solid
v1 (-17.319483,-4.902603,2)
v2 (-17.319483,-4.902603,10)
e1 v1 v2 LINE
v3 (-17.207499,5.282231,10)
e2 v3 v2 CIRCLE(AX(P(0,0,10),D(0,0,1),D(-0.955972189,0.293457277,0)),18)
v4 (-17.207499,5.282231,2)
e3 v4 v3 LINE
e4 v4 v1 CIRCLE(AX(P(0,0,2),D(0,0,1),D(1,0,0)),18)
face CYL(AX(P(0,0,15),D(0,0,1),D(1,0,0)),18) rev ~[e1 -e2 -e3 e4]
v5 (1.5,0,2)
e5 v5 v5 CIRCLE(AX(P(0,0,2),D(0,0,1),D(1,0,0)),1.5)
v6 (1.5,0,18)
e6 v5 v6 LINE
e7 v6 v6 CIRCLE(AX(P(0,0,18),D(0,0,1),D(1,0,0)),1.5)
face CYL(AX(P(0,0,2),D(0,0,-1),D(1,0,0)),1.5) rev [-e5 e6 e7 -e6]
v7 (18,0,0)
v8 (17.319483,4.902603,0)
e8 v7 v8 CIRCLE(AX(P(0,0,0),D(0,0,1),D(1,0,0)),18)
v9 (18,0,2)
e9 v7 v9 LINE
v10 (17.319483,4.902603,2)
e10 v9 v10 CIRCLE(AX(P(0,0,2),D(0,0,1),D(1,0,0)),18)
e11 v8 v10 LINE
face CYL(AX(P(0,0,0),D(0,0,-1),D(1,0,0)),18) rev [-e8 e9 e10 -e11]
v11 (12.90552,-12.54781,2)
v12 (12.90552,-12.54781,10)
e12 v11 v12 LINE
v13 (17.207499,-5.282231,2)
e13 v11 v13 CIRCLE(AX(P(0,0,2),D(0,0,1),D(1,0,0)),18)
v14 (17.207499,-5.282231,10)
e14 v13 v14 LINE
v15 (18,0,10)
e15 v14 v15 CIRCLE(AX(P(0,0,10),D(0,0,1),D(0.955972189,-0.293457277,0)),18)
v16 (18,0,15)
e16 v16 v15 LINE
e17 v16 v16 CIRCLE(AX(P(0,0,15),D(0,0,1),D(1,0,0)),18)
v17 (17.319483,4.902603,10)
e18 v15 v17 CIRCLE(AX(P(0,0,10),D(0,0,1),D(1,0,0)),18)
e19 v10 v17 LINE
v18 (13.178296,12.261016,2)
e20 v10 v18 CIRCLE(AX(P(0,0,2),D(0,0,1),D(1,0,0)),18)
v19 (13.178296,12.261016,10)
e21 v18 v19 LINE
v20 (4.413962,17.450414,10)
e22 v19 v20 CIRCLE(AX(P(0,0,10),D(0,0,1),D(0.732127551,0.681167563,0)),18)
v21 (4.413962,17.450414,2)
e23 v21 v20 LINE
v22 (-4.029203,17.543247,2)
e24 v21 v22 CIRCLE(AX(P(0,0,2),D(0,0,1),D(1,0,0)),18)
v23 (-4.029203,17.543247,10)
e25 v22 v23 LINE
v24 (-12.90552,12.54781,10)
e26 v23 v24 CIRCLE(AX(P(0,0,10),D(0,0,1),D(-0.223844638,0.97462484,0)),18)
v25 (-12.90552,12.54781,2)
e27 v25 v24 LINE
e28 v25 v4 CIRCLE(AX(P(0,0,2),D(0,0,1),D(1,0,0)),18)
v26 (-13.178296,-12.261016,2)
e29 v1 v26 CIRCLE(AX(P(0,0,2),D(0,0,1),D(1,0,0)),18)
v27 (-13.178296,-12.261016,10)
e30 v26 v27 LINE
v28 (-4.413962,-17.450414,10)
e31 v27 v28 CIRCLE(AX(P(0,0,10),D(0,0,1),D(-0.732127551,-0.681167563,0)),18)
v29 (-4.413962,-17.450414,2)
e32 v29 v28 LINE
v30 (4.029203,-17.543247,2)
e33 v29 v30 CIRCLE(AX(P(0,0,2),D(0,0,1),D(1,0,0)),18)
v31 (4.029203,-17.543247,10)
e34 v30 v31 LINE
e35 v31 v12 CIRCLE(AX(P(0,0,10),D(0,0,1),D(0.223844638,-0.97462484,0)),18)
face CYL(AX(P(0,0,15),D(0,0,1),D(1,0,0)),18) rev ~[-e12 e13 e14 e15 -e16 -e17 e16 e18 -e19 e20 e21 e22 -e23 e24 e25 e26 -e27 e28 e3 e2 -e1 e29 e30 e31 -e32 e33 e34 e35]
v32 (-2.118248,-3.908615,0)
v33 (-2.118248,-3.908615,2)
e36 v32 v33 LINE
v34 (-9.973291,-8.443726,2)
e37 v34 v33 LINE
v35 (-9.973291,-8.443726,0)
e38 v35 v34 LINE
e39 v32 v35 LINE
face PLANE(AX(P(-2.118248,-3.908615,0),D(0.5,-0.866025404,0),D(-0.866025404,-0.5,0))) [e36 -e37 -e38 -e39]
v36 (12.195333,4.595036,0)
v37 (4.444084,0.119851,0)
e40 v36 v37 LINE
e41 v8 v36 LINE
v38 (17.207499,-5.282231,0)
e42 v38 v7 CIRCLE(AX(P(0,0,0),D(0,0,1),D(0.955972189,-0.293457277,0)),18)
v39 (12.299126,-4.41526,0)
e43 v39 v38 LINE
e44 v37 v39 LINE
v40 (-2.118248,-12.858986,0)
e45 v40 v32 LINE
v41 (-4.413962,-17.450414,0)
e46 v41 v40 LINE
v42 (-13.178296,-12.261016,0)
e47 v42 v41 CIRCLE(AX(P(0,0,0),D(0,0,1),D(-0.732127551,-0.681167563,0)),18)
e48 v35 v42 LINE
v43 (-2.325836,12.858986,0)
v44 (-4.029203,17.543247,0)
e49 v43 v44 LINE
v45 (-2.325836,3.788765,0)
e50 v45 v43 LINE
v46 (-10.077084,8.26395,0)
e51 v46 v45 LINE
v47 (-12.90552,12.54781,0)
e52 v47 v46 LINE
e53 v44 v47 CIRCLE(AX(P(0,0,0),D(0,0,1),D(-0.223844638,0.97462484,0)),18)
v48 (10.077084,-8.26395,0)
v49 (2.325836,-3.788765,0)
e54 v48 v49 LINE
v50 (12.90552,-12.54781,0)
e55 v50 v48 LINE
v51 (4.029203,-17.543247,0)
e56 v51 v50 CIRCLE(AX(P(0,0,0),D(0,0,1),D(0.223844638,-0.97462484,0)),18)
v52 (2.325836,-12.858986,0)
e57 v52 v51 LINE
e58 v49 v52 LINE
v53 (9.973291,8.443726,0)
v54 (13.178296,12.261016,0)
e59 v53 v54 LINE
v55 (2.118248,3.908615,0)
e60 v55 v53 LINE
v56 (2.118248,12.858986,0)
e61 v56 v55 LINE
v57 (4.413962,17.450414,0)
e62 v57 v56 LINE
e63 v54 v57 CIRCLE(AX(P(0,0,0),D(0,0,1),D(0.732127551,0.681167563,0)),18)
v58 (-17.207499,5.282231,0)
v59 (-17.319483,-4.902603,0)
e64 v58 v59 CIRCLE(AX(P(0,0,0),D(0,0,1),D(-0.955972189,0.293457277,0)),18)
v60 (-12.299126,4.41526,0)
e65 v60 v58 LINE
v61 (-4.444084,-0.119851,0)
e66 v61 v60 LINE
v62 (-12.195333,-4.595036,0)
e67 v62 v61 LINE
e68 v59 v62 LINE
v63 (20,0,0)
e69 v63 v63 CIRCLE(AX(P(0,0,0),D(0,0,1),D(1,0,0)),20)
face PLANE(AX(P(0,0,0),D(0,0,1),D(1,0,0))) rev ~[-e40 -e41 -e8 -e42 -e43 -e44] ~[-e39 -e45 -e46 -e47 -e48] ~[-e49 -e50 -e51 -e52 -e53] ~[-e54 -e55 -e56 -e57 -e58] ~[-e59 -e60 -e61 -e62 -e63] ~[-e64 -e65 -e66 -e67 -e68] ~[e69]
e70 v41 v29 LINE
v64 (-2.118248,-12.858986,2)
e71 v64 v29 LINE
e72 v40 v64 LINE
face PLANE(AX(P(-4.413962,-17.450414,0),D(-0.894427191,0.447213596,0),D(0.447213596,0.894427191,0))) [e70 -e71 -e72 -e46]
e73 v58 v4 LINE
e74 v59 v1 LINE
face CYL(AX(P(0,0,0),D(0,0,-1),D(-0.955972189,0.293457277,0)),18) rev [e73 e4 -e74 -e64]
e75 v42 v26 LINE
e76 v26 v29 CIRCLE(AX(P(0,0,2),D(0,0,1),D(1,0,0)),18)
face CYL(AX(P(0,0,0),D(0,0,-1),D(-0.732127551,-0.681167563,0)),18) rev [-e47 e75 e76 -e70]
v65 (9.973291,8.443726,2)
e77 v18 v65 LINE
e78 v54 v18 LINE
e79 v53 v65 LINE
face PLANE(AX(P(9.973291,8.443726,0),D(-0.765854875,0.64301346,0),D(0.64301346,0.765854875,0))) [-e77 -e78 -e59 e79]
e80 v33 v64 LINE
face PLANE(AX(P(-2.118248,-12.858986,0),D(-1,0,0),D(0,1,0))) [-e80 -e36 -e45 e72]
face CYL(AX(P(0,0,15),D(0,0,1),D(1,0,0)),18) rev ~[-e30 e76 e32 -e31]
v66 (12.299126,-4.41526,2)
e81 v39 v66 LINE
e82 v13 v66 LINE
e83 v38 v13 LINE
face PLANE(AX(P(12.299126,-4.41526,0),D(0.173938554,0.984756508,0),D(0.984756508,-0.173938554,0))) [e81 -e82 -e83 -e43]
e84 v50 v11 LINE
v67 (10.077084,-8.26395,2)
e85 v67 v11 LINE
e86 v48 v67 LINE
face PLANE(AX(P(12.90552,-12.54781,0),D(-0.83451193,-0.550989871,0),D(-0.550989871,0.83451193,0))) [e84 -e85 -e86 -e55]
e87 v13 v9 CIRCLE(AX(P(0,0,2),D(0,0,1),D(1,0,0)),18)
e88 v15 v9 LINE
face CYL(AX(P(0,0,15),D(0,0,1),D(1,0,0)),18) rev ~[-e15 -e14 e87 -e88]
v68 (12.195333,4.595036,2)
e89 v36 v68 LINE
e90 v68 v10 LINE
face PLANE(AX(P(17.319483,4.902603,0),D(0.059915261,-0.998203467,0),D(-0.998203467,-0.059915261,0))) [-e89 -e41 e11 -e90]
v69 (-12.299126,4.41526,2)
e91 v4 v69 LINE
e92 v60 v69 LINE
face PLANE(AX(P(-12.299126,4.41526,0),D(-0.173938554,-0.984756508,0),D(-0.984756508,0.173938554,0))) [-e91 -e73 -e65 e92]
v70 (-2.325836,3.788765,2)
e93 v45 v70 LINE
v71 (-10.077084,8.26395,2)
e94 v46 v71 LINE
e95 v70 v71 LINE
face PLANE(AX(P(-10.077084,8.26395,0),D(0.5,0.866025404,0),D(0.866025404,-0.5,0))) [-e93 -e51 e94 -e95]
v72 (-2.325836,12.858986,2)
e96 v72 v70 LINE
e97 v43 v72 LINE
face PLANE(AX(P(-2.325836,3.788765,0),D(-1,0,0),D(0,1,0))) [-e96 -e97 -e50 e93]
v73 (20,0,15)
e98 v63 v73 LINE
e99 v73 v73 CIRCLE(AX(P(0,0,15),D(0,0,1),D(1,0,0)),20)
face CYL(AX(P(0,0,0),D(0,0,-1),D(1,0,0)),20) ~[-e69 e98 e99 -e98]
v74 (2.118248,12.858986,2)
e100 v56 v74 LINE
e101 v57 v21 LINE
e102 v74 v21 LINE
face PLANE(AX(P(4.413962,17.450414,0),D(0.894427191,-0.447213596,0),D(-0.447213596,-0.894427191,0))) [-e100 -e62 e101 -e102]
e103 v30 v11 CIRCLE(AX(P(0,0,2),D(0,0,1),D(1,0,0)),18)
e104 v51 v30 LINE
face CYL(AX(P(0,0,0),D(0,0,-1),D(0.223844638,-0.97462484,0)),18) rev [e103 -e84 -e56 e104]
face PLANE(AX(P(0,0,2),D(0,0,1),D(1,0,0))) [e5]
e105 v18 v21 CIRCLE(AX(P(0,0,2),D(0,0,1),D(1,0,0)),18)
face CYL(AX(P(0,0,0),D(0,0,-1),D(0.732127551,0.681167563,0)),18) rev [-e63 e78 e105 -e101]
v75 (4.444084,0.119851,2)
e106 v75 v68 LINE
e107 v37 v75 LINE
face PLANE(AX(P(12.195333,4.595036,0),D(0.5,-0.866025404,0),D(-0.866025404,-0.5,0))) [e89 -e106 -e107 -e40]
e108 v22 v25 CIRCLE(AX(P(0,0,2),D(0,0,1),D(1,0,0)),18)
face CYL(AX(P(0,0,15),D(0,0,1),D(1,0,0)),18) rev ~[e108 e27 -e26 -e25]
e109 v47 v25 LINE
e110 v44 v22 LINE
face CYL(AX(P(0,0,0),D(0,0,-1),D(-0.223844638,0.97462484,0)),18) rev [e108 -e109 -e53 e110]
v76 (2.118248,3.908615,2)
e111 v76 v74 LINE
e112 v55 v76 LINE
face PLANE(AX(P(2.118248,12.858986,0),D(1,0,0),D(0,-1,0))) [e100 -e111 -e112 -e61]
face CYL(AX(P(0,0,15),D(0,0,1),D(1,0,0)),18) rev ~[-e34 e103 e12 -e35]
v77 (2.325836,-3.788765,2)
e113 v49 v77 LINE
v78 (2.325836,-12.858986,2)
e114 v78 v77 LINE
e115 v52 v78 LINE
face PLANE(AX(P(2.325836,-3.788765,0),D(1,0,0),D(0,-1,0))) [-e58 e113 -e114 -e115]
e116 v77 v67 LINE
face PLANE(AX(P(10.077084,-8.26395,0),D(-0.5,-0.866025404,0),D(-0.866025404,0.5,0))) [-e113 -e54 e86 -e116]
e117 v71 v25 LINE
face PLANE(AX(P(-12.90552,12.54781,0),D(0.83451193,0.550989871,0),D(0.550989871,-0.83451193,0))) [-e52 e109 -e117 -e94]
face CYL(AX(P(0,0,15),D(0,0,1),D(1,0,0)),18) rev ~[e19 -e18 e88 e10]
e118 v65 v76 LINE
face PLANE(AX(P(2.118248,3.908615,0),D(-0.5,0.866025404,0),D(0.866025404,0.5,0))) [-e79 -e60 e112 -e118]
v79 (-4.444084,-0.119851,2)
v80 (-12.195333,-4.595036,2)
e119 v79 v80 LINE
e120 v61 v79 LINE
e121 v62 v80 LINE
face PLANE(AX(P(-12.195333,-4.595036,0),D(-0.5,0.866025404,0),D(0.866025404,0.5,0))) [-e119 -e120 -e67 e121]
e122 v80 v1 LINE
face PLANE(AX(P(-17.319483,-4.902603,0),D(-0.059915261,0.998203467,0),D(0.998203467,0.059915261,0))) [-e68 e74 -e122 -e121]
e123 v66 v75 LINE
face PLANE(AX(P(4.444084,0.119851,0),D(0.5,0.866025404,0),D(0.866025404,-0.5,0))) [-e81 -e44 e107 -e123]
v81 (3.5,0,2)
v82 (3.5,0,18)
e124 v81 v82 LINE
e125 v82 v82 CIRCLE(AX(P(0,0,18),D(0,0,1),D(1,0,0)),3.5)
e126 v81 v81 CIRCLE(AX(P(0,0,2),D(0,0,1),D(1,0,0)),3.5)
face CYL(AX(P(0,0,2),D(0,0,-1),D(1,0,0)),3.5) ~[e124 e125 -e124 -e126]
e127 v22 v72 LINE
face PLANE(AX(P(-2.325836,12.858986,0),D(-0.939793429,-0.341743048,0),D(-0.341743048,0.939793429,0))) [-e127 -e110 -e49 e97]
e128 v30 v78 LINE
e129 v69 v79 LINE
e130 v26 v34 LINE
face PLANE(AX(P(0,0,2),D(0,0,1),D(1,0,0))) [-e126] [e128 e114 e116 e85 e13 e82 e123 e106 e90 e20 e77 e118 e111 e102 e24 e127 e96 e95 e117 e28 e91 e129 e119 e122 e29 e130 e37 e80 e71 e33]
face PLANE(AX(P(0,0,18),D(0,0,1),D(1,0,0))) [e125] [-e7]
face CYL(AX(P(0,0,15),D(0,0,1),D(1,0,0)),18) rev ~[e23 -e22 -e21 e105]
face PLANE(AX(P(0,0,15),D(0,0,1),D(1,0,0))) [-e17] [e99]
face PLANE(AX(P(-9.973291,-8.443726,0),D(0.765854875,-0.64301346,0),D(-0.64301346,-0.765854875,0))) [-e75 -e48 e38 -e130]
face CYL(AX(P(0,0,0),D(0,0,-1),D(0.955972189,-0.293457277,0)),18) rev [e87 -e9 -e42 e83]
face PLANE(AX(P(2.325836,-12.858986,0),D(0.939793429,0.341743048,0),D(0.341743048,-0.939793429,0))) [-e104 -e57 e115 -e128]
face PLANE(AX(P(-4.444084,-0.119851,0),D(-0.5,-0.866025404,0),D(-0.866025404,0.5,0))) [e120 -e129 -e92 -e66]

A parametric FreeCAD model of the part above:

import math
import FreeCAD as App
import Part
import Sketcher
from FreeCAD import Vector
Q = App.Units.Quantity

doc = App.newDocument("Part")
body = doc.addObject("PartDesign::Body", "Body")

# Sketch on XY plane
sketch1 = body.newObject("Sketcher::SketchObject", "Sketch")
sketch1.AttachmentSupport = (doc.getObject("XY_Plane"), [""])
sketch1.MapMode = "FlatFace"
sketch1.addGeometry(Part.Circle(Vector(0, 0, 0), Vector(0, 0, 1), 20), False)
sketch1.addConstraint(Sketcher.Constraint("Coincident", 0, 3, -1, 1))
sketch1.addConstraint(Sketcher.Constraint("Diameter", 0, Q("40 mm")))
pad1 = body.newObject("PartDesign::Pad", "Pad")
pad1.Profile = sketch1
pad1.Length = 15

# Sketch on XY plane
sketch2 = body.newObject("Sketcher::SketchObject", "Sketch001")
sketch2.AttachmentSupport = (doc.getObject("XY_Plane"), [""])
sketch2.MapMode = "FlatFace"
sketch2.AttachmentOffset = App.Placement(Vector(0, 0, 15), App.Rotation())
sketch2.addGeometry(Part.Circle(Vector(0, 0, 0), Vector(0, 0, 1), 18), False)
sketch2.addConstraint(Sketcher.Constraint("Coincident", 0, 3, -1, 1))
sketch2.addConstraint(Sketcher.Constraint("Diameter", 0, Q("36 mm")))
pocket1 = body.newObject("PartDesign::Pocket", "Pocket")
pocket1.Profile = sketch2
pocket1.Length = 13

# Sketch on XY plane
sketch3 = body.newObject("Sketcher::SketchObject", "Sketch002")
sketch3.AttachmentSupport = (doc.getObject("XY_Plane"), [""])
sketch3.MapMode = "FlatFace"
sketch3.AttachmentOffset = App.Placement(Vector(0, 0, 2), App.Rotation())
sketch3.addGeometry(Part.Circle(Vector(0, 0, 0), Vector(0, 0, 1), 3.5), False)
sketch3.addGeometry(Part.Circle(Vector(0, 0, 0), Vector(0, 0, 1), 1.5), False)
sketch3.addConstraint(Sketcher.Constraint("Coincident", 0, 3, -1, 1))
sketch3.addConstraint(Sketcher.Constraint("Coincident", 1, 3, -1, 1))
sketch3.addConstraint(Sketcher.Constraint("Diameter", 0, Q("7 mm")))
sketch3.addConstraint(Sketcher.Constraint("Diameter", 1, Q("3 mm")))
pad2 = body.newObject("PartDesign::Pad", "Pad001")
pad2.Profile = sketch3
pad2.Length = 16

# Sketch on XY plane
sketch4 = body.newObject("Sketcher::SketchObject", "Sketch003")
sketch4.AttachmentSupport = (doc.getObject("XY_Plane"), [""])
sketch4.MapMode = "FlatFace"
sketch4.addGeometry(Part.LineSegment(Vector(10.1, -8.3, 0), Vector(2.3, -3.8, 0)), False)
sketch4.addGeometry(Part.LineSegment(Vector(2.3, -3.8, 0), Vector(2.3, -12.9, 0)), False)
sketch4.addGeometry(Part.LineSegment(Vector(2.3, -12.9, 0), Vector(4, -17.5, 0)), False)
sketch4.addGeometry(Part.ArcOfCircle(Part.Circle(Vector(0, 0, 0), Vector(0, 0, 1), 18), math.radians(-77), math.radians(-44)), False)
sketch4.addGeometry(Part.LineSegment(Vector(12.9, -12.5, 0), Vector(10.1, -8.3, 0)), False)
sketch4.addGeometry(Part.LineSegment(Vector(-2.1, -12.9, 0), Vector(-2.1, -3.9, 0)), False)
sketch4.addGeometry(Part.LineSegment(Vector(-2.1, -3.9, 0), Vector(-10, -8.4, 0)), False)
sketch4.addGeometry(Part.LineSegment(Vector(-10, -8.4, 0), Vector(-13.2, -12.3, 0)), False)
sketch4.addGeometry(Part.ArcOfCircle(Part.Circle(Vector(0, 0, 0), Vector(0, 0, 1), 18), math.radians(-137), math.radians(-104)), False)
sketch4.addGeometry(Part.LineSegment(Vector(-4.4, -17.5, 0), Vector(-2.1, -12.9, 0)), False)
sketch4.addGeometry(Part.LineSegment(Vector(-12.2, -4.6, 0), Vector(-4.4, -0.1, 0)), False)
sketch4.addGeometry(Part.LineSegment(Vector(-4.4, -0.1, 0), Vector(-12.3, 4.4, 0)), False)
sketch4.addGeometry(Part.LineSegment(Vector(-12.3, 4.4, 0), Vector(-17.2, 5.3, 0)), False)
sketch4.addGeometry(Part.ArcOfCircle(Part.Circle(Vector(0, 0, 0), Vector(0, 0, 1), 18), math.radians(163), math.radians(196)), False)
sketch4.addGeometry(Part.LineSegment(Vector(-17.3, -4.9, 0), Vector(-12.2, -4.6, 0)), False)
sketch4.addGeometry(Part.LineSegment(Vector(-10.1, 8.3, 0), Vector(-2.3, 3.8, 0)), False)
sketch4.addGeometry(Part.LineSegment(Vector(-2.3, 3.8, 0), Vector(-2.3, 12.9, 0)), False)
sketch4.addGeometry(Part.LineSegment(Vector(-2.3, 12.9, 0), Vector(-4, 17.5, 0)), False)
sketch4.addGeometry(Part.ArcOfCircle(Part.Circle(Vector(0, 0, 0), Vector(0, 0, 1), 18), math.radians(103), math.radians(136)), False)
sketch4.addGeometry(Part.LineSegment(Vector(-12.9, 12.5, 0), Vector(-10.1, 8.3, 0)), False)
sketch4.addGeometry(Part.LineSegment(Vector(2.1, 12.9, 0), Vector(2.1, 3.9, 0)), False)
sketch4.addGeometry(Part.LineSegment(Vector(2.1, 3.9, 0), Vector(10, 8.4, 0)), False)
sketch4.addGeometry(Part.LineSegment(Vector(10, 8.4, 0), Vector(13.2, 12.3, 0)), False)
sketch4.addGeometry(Part.ArcOfCircle(Part.Circle(Vector(0, 0, 0), Vector(0, 0, 1), 18), math.radians(43), math.radians(76)), False)
sketch4.addGeometry(Part.LineSegment(Vector(4.4, 17.5, 0), Vector(2.1, 12.9, 0)), False)
sketch4.addGeometry(Part.LineSegment(Vector(12.2, 4.6, 0), Vector(4.4, 0.1, 0)), False)
sketch4.addGeometry(Part.LineSegment(Vector(4.4, 0.1, 0), Vector(12.3, -4.4, 0)), False)
sketch4.addGeometry(Part.LineSegment(Vector(12.3, -4.4, 0), Vector(17.2, -5.3, 0)), False)
sketch4.addGeometry(Part.ArcOfCircle(Part.Circle(Vector(0, 0, 0), Vector(0, 0, 1), 18), math.radians(-17.07), math.radians(0)), False)
sketch4.addGeometry(Part.ArcOfCircle(Part.Circle(Vector(0, 0, 0), Vector(0, 0, 1), 18), math.radians(0), math.radians(15.81)), False)
sketch4.addGeometry(Part.LineSegment(Vector(17.3, 4.9, 0), Vector(12.2, 4.6, 0)), False)
sketch4.addConstraint(Sketcher.Constraint("Coincident", 0, 2, 1, 1))
sketch4.addConstraint(Sketcher.Constraint("Coincident", 1, 2, 2, 1))
sketch4.addConstraint(Sketcher.Constraint("Coincident", 2, 2, 3, 1))
sketch4.addConstraint(Sketcher.Constraint("Coincident", 3, 2, 4, 1))
sketch4.addConstraint(Sketcher.Constraint("Coincident", 4, 2, 0, 1))
sketch4.addConstraint(Sketcher.Constraint("Coincident", 5, 2, 6, 1))
sketch4.addConstraint(Sketcher.Constraint("Coincident", 6, 2, 7, 1))
sketch4.addConstraint(Sketcher.Constraint("Coincident", 7, 2, 8, 1))
sketch4.addConstraint(Sketcher.Constraint("Coincident", 8, 2, 9, 1))
sketch4.addConstraint(Sketcher.Constraint("Coincident", 9, 2, 5, 1))
sketch4.addConstraint(Sketcher.Constraint("Coincident", 10, 2, 11, 1))
sketch4.addConstraint(Sketcher.Constraint("Coincident", 11, 2, 12, 1))
sketch4.addConstraint(Sketcher.Constraint("Coincident", 12, 2, 13, 1))
sketch4.addConstraint(Sketcher.Constraint("Coincident", 13, 2, 14, 1))
sketch4.addConstraint(Sketcher.Constraint("Coincident", 14, 2, 10, 1))
sketch4.addConstraint(Sketcher.Constraint("Coincident", 15, 2, 16, 1))
sketch4.addConstraint(Sketcher.Constraint("Coincident", 16, 2, 17, 1))
sketch4.addConstraint(Sketcher.Constraint("Coincident", 17, 2, 18, 1))
sketch4.addConstraint(Sketcher.Constraint("Coincident", 18, 2, 19, 1))
sketch4.addConstraint(Sketcher.Constraint("Coincident", 19, 2, 15, 1))
sketch4.addConstraint(Sketcher.Constraint("Coincident", 20, 2, 21, 1))
sketch4.addConstraint(Sketcher.Constraint("Coincident", 21, 2, 22, 1))
sketch4.addConstraint(Sketcher.Constraint("Coincident", 22, 2, 23, 1))
sketch4.addConstraint(Sketcher.Constraint("Coincident", 23, 2, 24, 1))
sketch4.addConstraint(Sketcher.Constraint("Coincident", 24, 2, 20, 1))
sketch4.addConstraint(Sketcher.Constraint("Coincident", 25, 2, 26, 1))
sketch4.addConstraint(Sketcher.Constraint("Coincident", 26, 2, 27, 1))
sketch4.addConstraint(Sketcher.Constraint("Coincident", 27, 2, 28, 1))
sketch4.addConstraint(Sketcher.Constraint("Tangent", 28, 2, 29, 1))
sketch4.addConstraint(Sketcher.Constraint("Coincident", 29, 2, 30, 1))
sketch4.addConstraint(Sketcher.Constraint("Coincident", 30, 2, 25, 1))
sketch4.addConstraint(Sketcher.Constraint("Vertical", 1))
sketch4.addConstraint(Sketcher.Constraint("Vertical", 5))
sketch4.addConstraint(Sketcher.Constraint("Vertical", 16))
sketch4.addConstraint(Sketcher.Constraint("Vertical", 20))
sketch4.addConstraint(Sketcher.Constraint("Coincident", 3, 3, -1, 1))
sketch4.addConstraint(Sketcher.Constraint("Coincident", 8, 3, -1, 1))
sketch4.addConstraint(Sketcher.Constraint("Coincident", 13, 3, -1, 1))
sketch4.addConstraint(Sketcher.Constraint("Coincident", 18, 3, -1, 1))
sketch4.addConstraint(Sketcher.Constraint("Coincident", 23, 3, -1, 1))
sketch4.addConstraint(Sketcher.Constraint("Coincident", 28, 3, -1, 1))
sketch4.addConstraint(Sketcher.Constraint("Equal", 3, 8))
sketch4.addConstraint(Sketcher.Constraint("Equal", 8, 13))
sketch4.addConstraint(Sketcher.Constraint("Equal", 13, 18))
sketch4.addConstraint(Sketcher.Constraint("Equal", 18, 23))
sketch4.addConstraint(Sketcher.Constraint("Equal", 23, 28))
sketch4.addConstraint(Sketcher.Constraint("Equal", 28, 29))
sketch4.addConstraint(Sketcher.Constraint("Symmetric", 0, 2, 15, 2, -1, 1))
sketch4.addConstraint(Sketcher.Constraint("Symmetric", 4, 2, 19, 2, -1, 1))
sketch4.addConstraint(Sketcher.Constraint("Symmetric", 5, 2, 20, 2, -1, 1))
sketch4.addConstraint(Sketcher.Constraint("Symmetric", 6, 2, 21, 2, -1, 1))
sketch4.addConstraint(Sketcher.Constraint("Symmetric", 10, 2, 25, 2, -1, 1))
sketch4.addConstraint(Sketcher.Constraint("Symmetric", 11, 2, 26, 2, -1, 1))
sketch4.addConstraint(Sketcher.Constraint("Symmetric", 14, 2, 30, 2, -1, 1))
sketch4.addConstraint(Sketcher.Constraint("PointOnObject", 28, 2, -1))
sketch4.addConstraint(Sketcher.Constraint("Parallel", 6, 10))
sketch4.addConstraint(Sketcher.Constraint("Parallel", 0, 11))
sketch4.addConstraint(Sketcher.Constraint("Parallel", 2, 17))
sketch4.addConstraint(Sketcher.Constraint("Parallel", 4, 19))
sketch4.addConstraint(Sketcher.Constraint("Parallel", 7, 22))
sketch4.addConstraint(Sketcher.Constraint("Parallel", 9, 24))
sketch4.addConstraint(Sketcher.Constraint("Parallel", 12, 27))
sketch4.addConstraint(Sketcher.Constraint("Parallel", 14, 30))
sketch4.addConstraint(Sketcher.Constraint("Horizontal", 1, 2, 9, 2))
sketch4.addConstraint(Sketcher.Constraint("Horizontal", 16, 2, 24, 2))
sketch4.addConstraint(Sketcher.Constraint("Equal", 1, 16))
sketch4.addConstraint(Sketcher.Constraint("Equal", 2, 7))
sketch4.addConstraint(Sketcher.Constraint("Equal", 4, 9))
sketch4.addConstraint(Sketcher.Constraint("Equal", 0, 10))
sketch4.addConstraint(Sketcher.Constraint("Equal", 6, 11))
sketch4.addConstraint(Sketcher.Constraint("Equal", 7, 12))
sketch4.addConstraint(Sketcher.Constraint("Equal", 9, 14))
sketch4.addConstraint(Sketcher.Constraint("Radius", 3, Q("18 mm")))
sketch4.addConstraint(Sketcher.Constraint("Angle", 0, Q("150 deg")))
sketch4.addConstraint(Sketcher.Constraint("Angle", 6, Q("-150 deg")))
sketch4.addConstraint(Sketcher.Constraint("DistanceY", 1, 2, 1, 1, Q("9.070221 mm")))
sketch4.addConstraint(Sketcher.Constraint("DistanceY", 5, 1, 5, 2, Q("8.950371 mm")))
sketch4.addConstraint(Sketcher.Constraint("DistanceX", 12, 2, -1, 1, Q("17.207499 mm")))
sketch4.addConstraint(Sketcher.Constraint("DistanceY", 7, 2, 5, 2, Q("8.352401 mm")))
sketch4.addConstraint(Sketcher.Constraint("DistanceX", 8, 2, 1, 2, Q("6.739798 mm")))
sketch4.addConstraint(Sketcher.Constraint("DistanceY", 8, 2, 5, 2, Q("13.541798 mm")))
sketch4.addConstraint(Sketcher.Constraint("DistanceX", 13, 2, 10, 2, Q("12.875398 mm")))
sketch4.addConstraint(Sketcher.Constraint("Distance", 0, Q("8.950371 mm")))
sketch4.addConstraint(Sketcher.Constraint("Distance", 2, Q("4.984352 mm")))
sketch4.addConstraint(Sketcher.Constraint("Distance", 6, Q("9.070221 mm")))
sketch4.addConstraint(Sketcher.Constraint("DistanceX", -1, 1, 3, 2, Q("12.90552 mm")))
pocket2 = body.newObject("PartDesign::Pocket", "Pocket001")
pocket2.Profile = sketch4
pocket2.Length = 10
pocket2.Reversed = True

doc.recompute()
